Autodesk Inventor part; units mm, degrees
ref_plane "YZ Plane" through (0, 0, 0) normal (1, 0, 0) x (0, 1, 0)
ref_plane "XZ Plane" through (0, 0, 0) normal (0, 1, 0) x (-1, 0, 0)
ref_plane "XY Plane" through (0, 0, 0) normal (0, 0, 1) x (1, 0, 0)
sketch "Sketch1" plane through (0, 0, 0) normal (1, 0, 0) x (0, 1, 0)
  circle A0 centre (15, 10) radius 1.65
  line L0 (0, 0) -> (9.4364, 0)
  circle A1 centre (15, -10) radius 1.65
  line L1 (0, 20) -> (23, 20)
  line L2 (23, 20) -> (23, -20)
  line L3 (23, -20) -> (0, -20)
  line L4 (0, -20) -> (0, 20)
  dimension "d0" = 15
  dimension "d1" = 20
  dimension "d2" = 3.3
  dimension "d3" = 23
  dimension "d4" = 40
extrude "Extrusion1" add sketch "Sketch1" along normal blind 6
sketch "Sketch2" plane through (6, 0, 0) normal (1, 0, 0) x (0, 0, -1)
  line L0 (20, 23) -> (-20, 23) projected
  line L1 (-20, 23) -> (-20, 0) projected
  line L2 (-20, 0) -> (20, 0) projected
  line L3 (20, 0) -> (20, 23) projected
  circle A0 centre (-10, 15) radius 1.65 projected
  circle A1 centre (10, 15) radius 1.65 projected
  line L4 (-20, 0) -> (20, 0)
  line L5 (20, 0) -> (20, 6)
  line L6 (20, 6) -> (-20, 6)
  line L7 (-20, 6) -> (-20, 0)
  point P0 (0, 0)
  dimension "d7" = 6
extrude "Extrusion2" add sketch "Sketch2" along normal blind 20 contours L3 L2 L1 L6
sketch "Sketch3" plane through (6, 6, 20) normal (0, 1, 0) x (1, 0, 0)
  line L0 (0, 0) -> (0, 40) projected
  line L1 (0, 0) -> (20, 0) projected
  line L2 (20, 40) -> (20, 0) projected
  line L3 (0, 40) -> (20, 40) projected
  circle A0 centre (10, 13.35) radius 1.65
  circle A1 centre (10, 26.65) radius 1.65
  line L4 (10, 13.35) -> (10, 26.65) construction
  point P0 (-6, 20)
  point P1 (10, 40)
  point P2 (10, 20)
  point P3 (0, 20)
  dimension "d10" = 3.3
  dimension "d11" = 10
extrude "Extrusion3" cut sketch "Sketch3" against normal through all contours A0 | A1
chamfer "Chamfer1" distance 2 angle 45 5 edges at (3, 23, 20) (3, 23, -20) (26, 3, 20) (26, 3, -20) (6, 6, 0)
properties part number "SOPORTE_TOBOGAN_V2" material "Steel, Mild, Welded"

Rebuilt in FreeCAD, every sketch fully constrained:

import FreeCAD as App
import Part
import Sketcher

V = App.Vector
Q = App.Units.Quantity


def edges_at(feature, points):
    """Names of the edges that pass closest to the given points."""
    edges = feature.Shape.Edges
    near = lambda p: min(range(len(edges)), key=lambda i: edges[i].distToShape(Part.Vertex(*p))[0])
    return sorted({f"Edge{near(p) + 1}" for p in points})


def add_polygon(sketch, points):
    """Adds a closed chain of lines whose ends are joined by coincident constraints."""
    first, n = sketch.GeometryCount, len(points)
    for a, b in zip(points, points[1:] + points[:1]):
        sketch.addGeometry(Part.LineSegment(App.Vector(*a, 0), App.Vector(*b, 0)), False)
    for i in range(n):
        sketch.addConstraint(Sketcher.Constraint("Coincident", first + i, 2, first + (i + 1) % n, 1))

doc = App.newDocument("Part")
params = doc.addObject("Spreadsheet::Sheet", "Params")
for row, (alias, value) in enumerate([
    ("sketch1_diameter", "3.3 mm"),
    ("sketch1_width", "23 mm"),
    ("sketch1_height", "40 mm"),
    ("pad1_length", "6 mm"),
    ("sketch2_width", "6 mm"),
    ("sketch2_height", "40 mm"),
    ("pad2_length", "20 mm"),
    ("sketch3_diameter", "3.3 mm"),
    ("chamfer_size", "2 mm"),
], start=1):
    params.set(f"A{row}", alias)
    params.set(f"B{row}", "=" + value)
    params.setAlias(f"B{row}", alias)

body = doc.addObject("PartDesign::Body", "Body")

sketch1 = body.newObject("Sketcher::SketchObject", "Sketch")
sketch1.AttachmentSupport = (doc.getObject("YZ_Plane"), [""])
sketch1.MapMode = "FlatFace"
add_polygon(sketch1, [(23, 20), (0, 20), (0, -20), (23, -20)])
sketch1.addGeometry(Part.Circle(V(15, -10, 0), V(0, 0, 1), 1.65), False)
sketch1.addGeometry(Part.Circle(V(15, 10, 0), V(0, 0, 1), 1.65), False)
sketch1.addConstraint([
    Sketcher.Constraint("Horizontal", 0),
    Sketcher.Constraint("Vertical", 1),
    Sketcher.Constraint("Horizontal", 2),
    Sketcher.Constraint("Vertical", 3),
    Sketcher.Constraint("Equal", 4, 5),
    Sketcher.Constraint("Symmetric", 0, 2, 1, 2, -1, 1),
    Sketcher.Constraint("Symmetric", 4, 3, 5, 3, -1),
    Sketcher.Constraint("Diameter", 4, Q("3.3 mm")),
    Sketcher.Constraint("DistanceX", 0, 2, 0, 1, Q("23 mm")),
    Sketcher.Constraint("DistanceY", 1, 2, 1, 1, Q("40 mm")),
    Sketcher.Constraint("DistanceX", -1, 1, 4, 3, Q("15 mm")),
    Sketcher.Constraint("DistanceY", 4, 3, 5, 3, Q("20 mm")),
])
sketch1.setExpression("Constraints[11]", "Params.sketch1_diameter")
sketch1.setExpression("Constraints[12]", "Params.sketch1_width")
sketch1.setExpression("Constraints[13]", "Params.sketch1_height")
pad1 = body.newObject("PartDesign::Pad", "Pad")
pad1.Profile = sketch1
pad1.setExpression("Length", "Params.pad1_length")

sketch2 = body.newObject("Sketcher::SketchObject", "Sketch001")
sketch2.AttachmentSupport = (doc.getObject("YZ_Plane"), [""])
sketch2.MapMode = "FlatFace"
sketch2.AttachmentOffset = App.Placement(V(0, 0, 6), App.Rotation())
add_polygon(sketch2, [(0, -20), (6, -20), (6, 20), (0, 20)])
sketch2.addConstraint([
    Sketcher.Constraint("Horizontal", 0),
    Sketcher.Constraint("Vertical", 1),
    Sketcher.Constraint("Horizontal", 2),
    Sketcher.Constraint("Vertical", 3),
    Sketcher.Constraint("Symmetric", 2, 2, 3, 2, -1, 1),
    Sketcher.Constraint("DistanceX", 0, 1, 0, 2, Q("6 mm")),
    Sketcher.Constraint("DistanceY", 1, 1, 1, 2, Q("40 mm")),
])
sketch2.setExpression("Constraints[9]", "Params.sketch2_width")
sketch2.setExpression("Constraints[10]", "Params.sketch2_height")
pad2 = body.newObject("PartDesign::Pad", "Pad001")
pad2.Profile = sketch2
pad2.setExpression("Length", "Params.pad2_length")

sketch3 = body.newObject("Sketcher::SketchObject", "Sketch002")
sketch3.AttachmentSupport = (doc.getObject("XZ_Plane"), [""])
sketch3.MapMode = "FlatFace"
sketch3.AttachmentOffset = App.Placement(V(0, 0, -6), App.Rotation())
sketch3.addGeometry([
    Part.Circle(V(16, 6.65, 0), V(0, 0, 1), 1.65),
    Part.Circle(V(16, -6.65, 0), V(0, 0, 1), 1.65),
], False)
sketch3.addConstraint([
    Sketcher.Constraint("Equal", 0, 1),
    Sketcher.Constraint("Symmetric", 0, 3, 1, 3, -1),
    Sketcher.Constraint("Diameter", 0, Q("3.3 mm")),
    Sketcher.Constraint("DistanceX", -1, 1, 0, 3, Q("16 mm")),
    Sketcher.Constraint("DistanceY", 1, 3, 0, 3, Q("13.3 mm")),
])
sketch3.setExpression("Constraints[2]", "Params.sketch3_diameter")
pocket1 = body.newObject("PartDesign::Pocket", "Pocket")
pocket1.Profile = sketch3
pocket1.Type = "ThroughAll"
pocket1.Reversed = True
doc.recompute()

chamfer = body.newObject("PartDesign::Chamfer", "Chamfer")
chamfer.Base = (pocket1, edges_at(pocket1, [
    (3, 23, 20),
    (3, 23, -20),
    (26, 3, 20),
    (26, 3, -20),
    (6, 6, 0),
]))
chamfer.setExpression("Size", "Params.chamfer_size")

doc.recompute()
